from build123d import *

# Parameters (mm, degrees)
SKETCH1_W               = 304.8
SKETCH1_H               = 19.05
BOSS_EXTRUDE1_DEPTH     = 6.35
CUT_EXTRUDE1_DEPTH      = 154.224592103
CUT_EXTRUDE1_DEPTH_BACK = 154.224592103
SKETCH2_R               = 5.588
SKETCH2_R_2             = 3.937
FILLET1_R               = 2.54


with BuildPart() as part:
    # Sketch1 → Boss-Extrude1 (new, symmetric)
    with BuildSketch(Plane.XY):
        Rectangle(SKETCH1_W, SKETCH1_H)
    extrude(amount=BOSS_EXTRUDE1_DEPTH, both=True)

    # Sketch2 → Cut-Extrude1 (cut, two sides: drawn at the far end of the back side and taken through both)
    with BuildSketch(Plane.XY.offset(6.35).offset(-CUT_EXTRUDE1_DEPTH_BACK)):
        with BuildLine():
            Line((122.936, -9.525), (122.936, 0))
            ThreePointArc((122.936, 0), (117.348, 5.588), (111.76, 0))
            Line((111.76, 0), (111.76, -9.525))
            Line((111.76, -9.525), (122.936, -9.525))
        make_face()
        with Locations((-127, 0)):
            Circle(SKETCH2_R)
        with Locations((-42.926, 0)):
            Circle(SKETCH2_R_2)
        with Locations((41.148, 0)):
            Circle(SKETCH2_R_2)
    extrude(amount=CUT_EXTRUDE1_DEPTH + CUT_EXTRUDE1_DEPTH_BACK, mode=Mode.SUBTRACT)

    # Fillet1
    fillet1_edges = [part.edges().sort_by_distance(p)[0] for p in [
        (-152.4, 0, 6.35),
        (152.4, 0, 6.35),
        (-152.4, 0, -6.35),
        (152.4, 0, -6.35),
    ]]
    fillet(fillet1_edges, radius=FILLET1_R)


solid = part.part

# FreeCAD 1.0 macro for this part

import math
import FreeCAD as App
import Part
import Sketcher
Q = App.Units.Quantity


def edges_at(feature, points):
    """Names of the edges that pass closest to the given points."""
    edges = feature.Shape.Edges
    near = lambda p: min(range(len(edges)), key=lambda i: edges[i].distToShape(Part.Vertex(*p))[0])
    return sorted({f"Edge{near(p) + 1}" for p in points})

doc = App.newDocument("Part")
params = doc.addObject("Spreadsheet::Sheet", "Params")
for row, (alias, value) in enumerate([
    ("sketch1_width", "12 in"),
    ("sketch1_height", "0.75 in"),
    ("pad1_length", "0.5 in"),
    ("sketch2_diameter", "0.44 in"),
    ("sketch2_diameter2", "0.31 in"),
    ("sketch2_height", "0.375 in"),
    ("fillet_radius", "0.1 in"),
], start=1):
    params.set(f"A{row}", alias)
    params.set(f"B{row}", "=" + value)
    params.setAlias(f"B{row}", alias)

body = doc.addObject("PartDesign::Body", "Body")

sketch1 = doc.addObject("Sketcher::SketchObject", "Sketch")
body.addObject(sketch1)
sketch1.AttachmentSupport = (doc.XY_Plane, [""])
sketch1.MapMode = "FlatFace"
sketch1.addGeometry([
    Part.LineSegment(App.Vector(-152, 10, 0), App.Vector(-152, -10, 0)),
    Part.LineSegment(App.Vector(-152, -10, 0), App.Vector(152, -10, 0)),
    Part.LineSegment(App.Vector(152, -10, 0), App.Vector(152, 10, 0)),
    Part.LineSegment(App.Vector(152, 10, 0), App.Vector(-152, 10, 0)),
], False)
sketch1.addConstraint([
    Sketcher.Constraint("Coincident", 0, 2, 1, 1),
    Sketcher.Constraint("Coincident", 1, 2, 2, 1),
    Sketcher.Constraint("Coincident", 2, 2, 3, 1),
    Sketcher.Constraint("Coincident", 3, 2, 0, 1),
    Sketcher.Constraint("Vertical", 0),
    Sketcher.Constraint("Horizontal", 1),
    Sketcher.Constraint("Vertical", 2),
    Sketcher.Constraint("Horizontal", 3),
    Sketcher.Constraint("Symmetric", 0, 2, 2, 2, -1, 1),
    Sketcher.Constraint("DistanceX", 1, 1, 1, 2, Q("12 in")),
    Sketcher.Constraint("DistanceY", 0, 2, 0, 1, Q("0.75 in")),
])
sketch1.setExpression("Constraints[9]", "Params.sketch1_width")
sketch1.setExpression("Constraints[10]", "Params.sketch1_height")
pad1 = doc.addObject("PartDesign::Pad", "Pad")
body.addObject(pad1)
pad1.Profile = sketch1
pad1.setExpression("Length", "Params.pad1_length")
pad1.Midplane = True

sketch2 = doc.addObject("Sketcher::SketchObject", "Sketch001")
body.addObject(sketch2)
sketch2.AttachmentSupport = (doc.XY_Plane, [""])
sketch2.MapMode = "FlatFace"
sketch2.AttachmentOffset = App.Placement(App.Vector(0, 0, 0.25 * 25.4), App.Rotation())
sketch2.addGeometry([
    Part.LineSegment(App.Vector(122.9, -9.5, 0), App.Vector(122.9, 0, 0)),
    Part.ArcOfCircle(Part.Circle(App.Vector(117.3, 0, 0), App.Vector(0, 0, 1), 5.6), math.radians(0), math.radians(180)),
    Part.LineSegment(App.Vector(111.8, 0, 0), App.Vector(111.8, -9.5, 0)),
    Part.LineSegment(App.Vector(111.8, -9.5, 0), App.Vector(122.9, -9.5, 0)),
    Part.Circle(App.Vector(-127, 0, 0), App.Vector(0, 0, 1), 5.6),
    Part.Circle(App.Vector(-42.9, 0, 0), App.Vector(0, 0, 1), 3.9),
    Part.Circle(App.Vector(41.1, 0, 0), App.Vector(0, 0, 1), 3.9),
], False)
sketch2.addConstraint([
    Sketcher.Constraint("Tangent", 0, 2, 1, 1),
    Sketcher.Constraint("Tangent", 1, 2, 2, 1),
    Sketcher.Constraint("Coincident", 2, 2, 3, 1),
    Sketcher.Constraint("Coincident", 3, 2, 0, 1),
    Sketcher.Constraint("Vertical", 0),
    Sketcher.Constraint("Vertical", 2),
    Sketcher.Constraint("Horizontal", 3),
    Sketcher.Constraint("Equal", 1, 4),
    Sketcher.Constraint("Equal", 5, 6),
    Sketcher.Constraint("PointOnObject", 1, 3, -1),
    Sketcher.Constraint("PointOnObject", 4, 3, -1),
    Sketcher.Constraint("PointOnObject", 5, 3, -1),
    Sketcher.Constraint("PointOnObject", 6, 3, -1),
    Sketcher.Constraint("Diameter", 4, Q("0.44 in")),
    Sketcher.Constraint("Diameter", 5, Q("0.31 in")),
    Sketcher.Constraint("DistanceX", 4, 3, -1, 1, Q("5 in")),
    Sketcher.Constraint("DistanceX", 6, 3, 1, 3, Q("3 in")),
    Sketcher.Constraint("DistanceX", -1, 1, 1, 2, Q("4.4 in")),
    Sketcher.Constraint("DistanceY", 0, 1, 0, 2, Q("0.375 in")),
    Sketcher.Constraint("DistanceX", 5, 3, -1, 1, Q("1.69 in")),
])
sketch2.setExpression("Constraints[13]", "Params.sketch2_diameter")
sketch2.setExpression("Constraints[14]", "Params.sketch2_diameter2")
sketch2.setExpression("Constraints[18]", "Params.sketch2_height")
pocket1 = doc.addObject("PartDesign::Pocket", "Pocket")
body.addObject(pocket1)
pocket1.Profile = sketch2
pocket1.Type = "ThroughAll"
pocket1.Midplane = True
doc.recompute()

fillet = doc.addObject("PartDesign::Fillet", "Fillet")
body.addObject(fillet)
fillet.Base = (pocket1, edges_at(pocket1, [
    (-152.4, 0, 6.35),
    (152.4, 0, 6.35),
    (-152.4, 0, -6.35),
    (152.4, 0, -6.35),
]))
fillet.setExpression("Radius", "Params.fillet_radius")

doc.recompute()
